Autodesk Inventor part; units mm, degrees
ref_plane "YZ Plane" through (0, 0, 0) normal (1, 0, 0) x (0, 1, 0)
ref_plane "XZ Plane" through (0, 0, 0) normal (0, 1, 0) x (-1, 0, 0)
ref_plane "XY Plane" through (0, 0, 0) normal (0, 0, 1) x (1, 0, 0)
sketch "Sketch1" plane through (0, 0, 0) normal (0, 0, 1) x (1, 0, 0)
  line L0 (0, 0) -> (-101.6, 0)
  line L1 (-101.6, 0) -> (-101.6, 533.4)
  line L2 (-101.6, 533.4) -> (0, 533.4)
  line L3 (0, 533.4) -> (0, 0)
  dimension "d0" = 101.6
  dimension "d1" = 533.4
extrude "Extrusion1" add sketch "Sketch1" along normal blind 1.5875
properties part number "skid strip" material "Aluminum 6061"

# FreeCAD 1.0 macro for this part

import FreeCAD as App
import Part
import Sketcher

V = App.Vector
Q = App.Units.Quantity


def add_polygon(sketch, points):
    """Adds a closed chain of lines whose ends are joined by coincident constraints."""
    first, n = sketch.GeometryCount, len(points)
    for a, b in zip(points, points[1:] + points[:1]):
        sketch.addGeometry(Part.LineSegment(App.Vector(*a, 0), App.Vector(*b, 0)), False)
    for i in range(n):
        sketch.addConstraint(Sketcher.Constraint("Coincident", first + i, 2, first + (i + 1) % n, 1))

doc = App.newDocument("Part")
params = doc.addObject("Spreadsheet::Sheet", "Params")
for row, (alias, value) in enumerate([
    ("sketch1_width", "4 in"),
    ("sketch1_height", "21 in"),
    ("pad1_length", "0.0625 in"),
], start=1):
    params.set(f"A{row}", alias)
    params.set(f"B{row}", "=" + value)
    params.setAlias(f"B{row}", alias)

body = doc.addObject("PartDesign::Body", "Body")

# Sketch on XY plane
sketch1 = doc.addObject("Sketcher::SketchObject", "Sketch")
body.addObject(sketch1)
sketch1.AttachmentSupport = (doc.XY_Plane, [""])
sketch1.MapMode = "FlatFace"
add_polygon(sketch1, [(-102, 0), (0, 0), (0, 533), (-102, 533)])  # lines 0-3
sketch1.addConstraint(Sketcher.Constraint("Horizontal", 0))
sketch1.addConstraint(Sketcher.Constraint("Vertical", 1))
sketch1.addConstraint(Sketcher.Constraint("Horizontal", 2))
sketch1.addConstraint(Sketcher.Constraint("Vertical", 3))
sketch1.addConstraint(Sketcher.Constraint("Coincident", 0, 2, -1, 1))
sketch1.addConstraint(Sketcher.Constraint("DistanceX", 0, 1, 0, 2, Q("4 in")))
sketch1.addConstraint(Sketcher.Constraint("DistanceY", 1, 1, 1, 2, Q("21 in")))
sketch1.setExpression("Constraints[9]", "Params.sketch1_width")
sketch1.setExpression("Constraints[10]", "Params.sketch1_height")
pad1 = doc.addObject("PartDesign::Pad", "Pad")
body.addObject(pad1)
pad1.Profile = sketch1
pad1.setExpression("Length", "Params.pad1_length")

doc.recompute()
